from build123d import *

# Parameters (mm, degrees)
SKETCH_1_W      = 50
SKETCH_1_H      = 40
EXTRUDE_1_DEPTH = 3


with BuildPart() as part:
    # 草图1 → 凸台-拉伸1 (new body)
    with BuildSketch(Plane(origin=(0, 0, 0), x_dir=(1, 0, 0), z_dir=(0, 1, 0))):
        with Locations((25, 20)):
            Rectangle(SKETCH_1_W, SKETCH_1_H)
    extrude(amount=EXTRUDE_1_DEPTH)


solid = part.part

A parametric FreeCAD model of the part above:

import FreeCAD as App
import Part
import Sketcher

V = App.Vector

doc = App.newDocument("Part")
params = doc.addObject("Spreadsheet::Sheet", "Params")
for row, (alias, value) in enumerate([
    ("sketch1_width", "50 mm"),
    ("sketch1_height", "40 mm"),
    ("pad1_length", "3 mm"),
], start=1):
    params.set(f"A{row}", alias)
    params.set(f"B{row}", "=" + value)
    params.setAlias(f"B{row}", alias)

body = doc.addObject("PartDesign::Body", "Body")

# Sketch on XZ plane
sketch1 = body.newObject("Sketcher::SketchObject", "Sketch")
sketch1.AttachmentSupport = (doc.getObject("XZ_Plane"), [""])
sketch1.MapMode = "FlatFace"
sketch1.addGeometry(Part.LineSegment(V(0, -40, 0), V(0, 0, 0)), False)
sketch1.addGeometry(Part.LineSegment(V(0, 0, 0), V(50, 0, 0)), False)
sketch1.addGeometry(Part.LineSegment(V(50, 0, 0), V(50, -40, 0)), False)
sketch1.addGeometry(Part.LineSegment(V(50, -40, 0), V(0, -40, 0)), False)
sketch1.addConstraint(Sketcher.Constraint("Coincident", 0, 2, 1, 1))
sketch1.addConstraint(Sketcher.Constraint("Coincident", 1, 2, 2, 1))
sketch1.addConstraint(Sketcher.Constraint("Coincident", 2, 2, 3, 1))
sketch1.addConstraint(Sketcher.Constraint("Coincident", 3, 2, 0, 1))
sketch1.addConstraint(Sketcher.Constraint("Vertical", 0))
sketch1.addConstraint(Sketcher.Constraint("Horizontal", 1))
sketch1.addConstraint(Sketcher.Constraint("Vertical", 2))
sketch1.addConstraint(Sketcher.Constraint("Horizontal", 3))
sketch1.addConstraint(Sketcher.Constraint("Coincident", 0, 2, -1, 1))
sketch1.addConstraint(Sketcher.Constraint("DistanceX", 1, 1, 1, 2, 50.0))
sketch1.addConstraint(Sketcher.Constraint("DistanceY", 0, 1, 0, 2, 40.0))
sketch1.setExpression("Constraints[9]", "Params.sketch1_width")
sketch1.setExpression("Constraints[10]", "Params.sketch1_height")
pad1 = body.newObject("PartDesign::Pad", "Pad")
pad1.Profile = sketch1
pad1.setExpression("Length", "Params.pad1_length")
pad1.Reversed = True

doc.recompute()
